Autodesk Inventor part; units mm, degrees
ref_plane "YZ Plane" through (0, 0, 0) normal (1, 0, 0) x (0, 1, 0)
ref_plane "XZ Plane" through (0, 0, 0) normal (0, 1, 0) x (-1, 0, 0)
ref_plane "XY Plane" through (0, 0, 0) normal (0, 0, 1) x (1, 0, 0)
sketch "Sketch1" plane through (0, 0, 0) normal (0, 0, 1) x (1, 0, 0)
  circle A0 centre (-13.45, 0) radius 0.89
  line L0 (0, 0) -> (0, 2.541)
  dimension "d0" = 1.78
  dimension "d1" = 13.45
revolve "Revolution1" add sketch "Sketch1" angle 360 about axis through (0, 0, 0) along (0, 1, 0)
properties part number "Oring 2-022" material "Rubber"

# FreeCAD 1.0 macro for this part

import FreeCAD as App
import Part
import Sketcher
Q = App.Units.Quantity

doc = App.newDocument("Part")
body = doc.addObject("PartDesign::Body", "Body")

# Sketch on XY plane
sketch1 = body.newObject("Sketcher::SketchObject", "Sketch")
sketch1.AttachmentSupport = (doc.getObject("XY_Plane"), [""])
sketch1.MapMode = "FlatFace"
sketch1.addGeometry(Part.Circle(App.Vector(-13.4, 0, 0), App.Vector(0, 0, 1), 0.9), False)
sketch1.addConstraint([
    Sketcher.Constraint("PointOnObject", 0, 3, -1),
    Sketcher.Constraint("Diameter", 0, Q("1.78 mm")),
    Sketcher.Constraint("DistanceX", 0, 3, -1, 1, Q("13.45 mm")),
])
revolution = body.newObject("PartDesign::Revolution", "Revolution")
revolution.Profile = sketch1
revolution.ReferenceAxis = (sketch1, ["V_Axis"])
revolution.Angle = 360

doc.recompute()
